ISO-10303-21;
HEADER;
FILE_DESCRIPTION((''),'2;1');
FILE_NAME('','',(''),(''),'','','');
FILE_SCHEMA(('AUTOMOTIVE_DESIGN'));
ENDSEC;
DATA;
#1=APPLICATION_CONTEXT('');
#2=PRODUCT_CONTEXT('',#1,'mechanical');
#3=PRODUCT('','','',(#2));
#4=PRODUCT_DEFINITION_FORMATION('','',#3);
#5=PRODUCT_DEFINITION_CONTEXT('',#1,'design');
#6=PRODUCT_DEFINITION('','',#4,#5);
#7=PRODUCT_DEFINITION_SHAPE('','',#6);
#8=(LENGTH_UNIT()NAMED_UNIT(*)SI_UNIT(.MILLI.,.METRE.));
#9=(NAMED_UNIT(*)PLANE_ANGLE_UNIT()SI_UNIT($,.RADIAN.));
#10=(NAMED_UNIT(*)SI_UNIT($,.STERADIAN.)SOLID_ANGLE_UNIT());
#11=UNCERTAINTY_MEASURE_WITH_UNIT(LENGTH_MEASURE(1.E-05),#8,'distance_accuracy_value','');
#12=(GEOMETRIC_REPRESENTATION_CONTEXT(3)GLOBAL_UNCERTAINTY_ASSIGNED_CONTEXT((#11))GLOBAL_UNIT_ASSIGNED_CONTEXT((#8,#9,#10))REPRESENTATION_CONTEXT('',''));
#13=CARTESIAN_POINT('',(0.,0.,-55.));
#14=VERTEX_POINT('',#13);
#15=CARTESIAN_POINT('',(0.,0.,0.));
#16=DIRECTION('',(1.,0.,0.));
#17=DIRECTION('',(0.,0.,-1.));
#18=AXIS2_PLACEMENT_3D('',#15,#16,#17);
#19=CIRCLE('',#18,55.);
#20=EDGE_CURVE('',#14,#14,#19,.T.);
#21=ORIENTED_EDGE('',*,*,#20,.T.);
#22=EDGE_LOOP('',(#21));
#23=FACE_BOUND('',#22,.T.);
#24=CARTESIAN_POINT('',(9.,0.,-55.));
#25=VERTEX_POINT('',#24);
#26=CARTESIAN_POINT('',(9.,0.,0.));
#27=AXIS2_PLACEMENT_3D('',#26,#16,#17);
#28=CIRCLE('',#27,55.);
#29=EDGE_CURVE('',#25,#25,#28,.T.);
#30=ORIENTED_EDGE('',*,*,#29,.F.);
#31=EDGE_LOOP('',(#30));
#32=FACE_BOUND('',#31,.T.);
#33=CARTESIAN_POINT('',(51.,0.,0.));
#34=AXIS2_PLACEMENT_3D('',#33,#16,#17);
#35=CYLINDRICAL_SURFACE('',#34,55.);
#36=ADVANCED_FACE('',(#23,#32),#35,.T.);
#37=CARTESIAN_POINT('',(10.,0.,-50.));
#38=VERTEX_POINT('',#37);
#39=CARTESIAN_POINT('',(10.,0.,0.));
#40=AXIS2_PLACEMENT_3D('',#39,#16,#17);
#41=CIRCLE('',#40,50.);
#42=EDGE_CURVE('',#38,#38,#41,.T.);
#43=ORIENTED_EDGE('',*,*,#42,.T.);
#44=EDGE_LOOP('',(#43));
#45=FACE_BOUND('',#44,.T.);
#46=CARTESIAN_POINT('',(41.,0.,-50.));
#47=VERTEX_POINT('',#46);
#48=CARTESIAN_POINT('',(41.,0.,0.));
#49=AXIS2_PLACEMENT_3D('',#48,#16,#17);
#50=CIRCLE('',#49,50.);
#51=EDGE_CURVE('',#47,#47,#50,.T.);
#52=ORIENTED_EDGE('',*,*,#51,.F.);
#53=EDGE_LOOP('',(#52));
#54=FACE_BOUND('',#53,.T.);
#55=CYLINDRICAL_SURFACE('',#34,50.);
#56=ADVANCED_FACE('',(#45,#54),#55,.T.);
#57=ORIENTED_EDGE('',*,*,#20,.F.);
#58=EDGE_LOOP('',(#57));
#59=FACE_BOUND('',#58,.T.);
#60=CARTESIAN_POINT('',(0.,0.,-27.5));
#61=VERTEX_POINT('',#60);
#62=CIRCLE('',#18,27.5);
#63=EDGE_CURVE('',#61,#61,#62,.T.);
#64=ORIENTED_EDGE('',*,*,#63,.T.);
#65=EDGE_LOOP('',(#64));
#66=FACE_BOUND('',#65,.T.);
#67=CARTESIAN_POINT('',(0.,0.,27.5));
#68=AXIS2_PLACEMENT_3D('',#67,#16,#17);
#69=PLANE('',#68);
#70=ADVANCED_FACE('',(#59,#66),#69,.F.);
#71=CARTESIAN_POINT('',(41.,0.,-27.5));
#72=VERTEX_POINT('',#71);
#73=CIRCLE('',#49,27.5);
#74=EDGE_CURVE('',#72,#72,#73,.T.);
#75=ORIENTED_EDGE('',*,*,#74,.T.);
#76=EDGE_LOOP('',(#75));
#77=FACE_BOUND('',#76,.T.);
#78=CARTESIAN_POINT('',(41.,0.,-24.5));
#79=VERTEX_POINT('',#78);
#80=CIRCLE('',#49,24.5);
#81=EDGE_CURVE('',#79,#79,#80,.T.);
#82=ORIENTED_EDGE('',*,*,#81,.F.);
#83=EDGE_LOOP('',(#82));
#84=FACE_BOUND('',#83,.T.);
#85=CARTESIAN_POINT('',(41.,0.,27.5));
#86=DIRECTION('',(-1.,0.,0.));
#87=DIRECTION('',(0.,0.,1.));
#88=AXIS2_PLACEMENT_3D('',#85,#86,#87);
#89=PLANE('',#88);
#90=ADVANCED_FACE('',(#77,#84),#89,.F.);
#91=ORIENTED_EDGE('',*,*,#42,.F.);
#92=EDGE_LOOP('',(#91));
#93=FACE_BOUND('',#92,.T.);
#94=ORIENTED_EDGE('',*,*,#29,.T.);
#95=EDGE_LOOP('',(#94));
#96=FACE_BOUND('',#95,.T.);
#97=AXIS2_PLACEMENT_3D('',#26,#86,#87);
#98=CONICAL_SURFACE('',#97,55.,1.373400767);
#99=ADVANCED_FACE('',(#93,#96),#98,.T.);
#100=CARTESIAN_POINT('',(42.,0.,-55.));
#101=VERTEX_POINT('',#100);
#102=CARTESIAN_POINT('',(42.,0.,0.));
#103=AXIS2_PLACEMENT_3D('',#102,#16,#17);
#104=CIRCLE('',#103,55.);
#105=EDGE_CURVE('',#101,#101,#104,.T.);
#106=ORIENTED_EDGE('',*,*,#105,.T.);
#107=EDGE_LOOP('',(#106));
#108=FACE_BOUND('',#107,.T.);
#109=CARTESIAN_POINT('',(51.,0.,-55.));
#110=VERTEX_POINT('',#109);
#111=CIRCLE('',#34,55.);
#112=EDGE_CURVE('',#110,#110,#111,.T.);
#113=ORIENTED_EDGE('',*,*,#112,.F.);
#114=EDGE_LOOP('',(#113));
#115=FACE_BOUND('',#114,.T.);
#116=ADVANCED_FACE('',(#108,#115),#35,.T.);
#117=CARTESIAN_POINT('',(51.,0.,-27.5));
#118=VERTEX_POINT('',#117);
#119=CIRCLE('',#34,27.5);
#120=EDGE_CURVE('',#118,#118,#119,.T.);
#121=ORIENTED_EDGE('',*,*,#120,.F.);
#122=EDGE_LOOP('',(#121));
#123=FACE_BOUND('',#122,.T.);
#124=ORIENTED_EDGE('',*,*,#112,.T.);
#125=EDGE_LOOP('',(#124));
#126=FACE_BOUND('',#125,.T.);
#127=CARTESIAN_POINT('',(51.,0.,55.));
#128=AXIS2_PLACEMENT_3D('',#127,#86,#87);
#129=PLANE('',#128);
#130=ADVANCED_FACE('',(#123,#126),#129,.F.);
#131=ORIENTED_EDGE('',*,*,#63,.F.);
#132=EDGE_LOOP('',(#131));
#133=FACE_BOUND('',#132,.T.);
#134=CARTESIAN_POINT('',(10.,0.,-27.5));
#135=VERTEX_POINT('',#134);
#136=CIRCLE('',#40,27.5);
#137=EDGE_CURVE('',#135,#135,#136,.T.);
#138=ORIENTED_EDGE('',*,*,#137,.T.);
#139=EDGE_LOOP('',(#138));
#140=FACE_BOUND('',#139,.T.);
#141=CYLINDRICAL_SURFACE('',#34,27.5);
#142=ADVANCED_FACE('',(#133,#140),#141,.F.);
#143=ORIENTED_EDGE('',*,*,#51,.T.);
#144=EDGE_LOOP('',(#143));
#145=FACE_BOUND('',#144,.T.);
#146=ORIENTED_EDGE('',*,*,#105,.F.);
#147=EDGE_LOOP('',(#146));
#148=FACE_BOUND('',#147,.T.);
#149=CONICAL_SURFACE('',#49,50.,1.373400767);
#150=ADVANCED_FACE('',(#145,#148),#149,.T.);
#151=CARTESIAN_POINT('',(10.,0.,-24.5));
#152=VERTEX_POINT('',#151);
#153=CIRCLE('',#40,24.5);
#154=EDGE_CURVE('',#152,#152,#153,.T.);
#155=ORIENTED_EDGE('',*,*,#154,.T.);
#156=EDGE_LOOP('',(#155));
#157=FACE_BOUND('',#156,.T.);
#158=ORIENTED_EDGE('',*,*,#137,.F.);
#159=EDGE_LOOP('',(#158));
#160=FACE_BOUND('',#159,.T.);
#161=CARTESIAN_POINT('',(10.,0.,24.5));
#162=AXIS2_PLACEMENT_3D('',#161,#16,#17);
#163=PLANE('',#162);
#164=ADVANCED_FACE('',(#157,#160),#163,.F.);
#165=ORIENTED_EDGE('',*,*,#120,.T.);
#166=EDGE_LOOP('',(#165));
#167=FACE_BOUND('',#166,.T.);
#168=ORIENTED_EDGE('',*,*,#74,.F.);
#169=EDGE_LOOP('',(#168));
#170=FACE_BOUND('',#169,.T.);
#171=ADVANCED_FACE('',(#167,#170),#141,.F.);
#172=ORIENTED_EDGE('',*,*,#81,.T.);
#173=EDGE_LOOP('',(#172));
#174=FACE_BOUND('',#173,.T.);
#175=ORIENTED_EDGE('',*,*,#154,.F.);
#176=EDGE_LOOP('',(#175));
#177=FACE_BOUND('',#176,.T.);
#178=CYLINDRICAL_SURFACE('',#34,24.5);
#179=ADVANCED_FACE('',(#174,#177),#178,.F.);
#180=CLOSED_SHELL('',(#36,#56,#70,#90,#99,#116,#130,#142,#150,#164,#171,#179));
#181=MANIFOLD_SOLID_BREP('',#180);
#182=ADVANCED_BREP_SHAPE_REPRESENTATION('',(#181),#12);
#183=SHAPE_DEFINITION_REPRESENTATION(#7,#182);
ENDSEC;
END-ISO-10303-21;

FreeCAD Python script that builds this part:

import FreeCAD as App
import Part
import Sketcher

doc = App.newDocument("Part")
params = doc.addObject("Spreadsheet::Sheet", "Params")
for row, (alias, value) in enumerate([
    ("sketch1_width", "31 mm"),
    ("sketch1_width2", "9 mm"),
    ("sketch1_width3", "10 mm"),
    ("sketch1_height", "3 mm"),
    ("sketch1_height2", "27.5 mm"),
    ("revolution_angle", "360 deg"),
], start=1):
    params.set(f"A{row}", alias)
    params.set(f"B{row}", "=" + value)
    params.setAlias(f"B{row}", alias)

body = doc.addObject("PartDesign::Body", "Body")

sketch1 = body.newObject("Sketcher::SketchObject", "Sketch")
sketch1.AttachmentSupport = (doc.getObject("XZ_Plane"), [""])
sketch1.MapMode = "FlatFace"
sketch1.addGeometry([
    Part.LineSegment(App.Vector(9, 55, 0), App.Vector(10, 50, 0)),
    Part.LineSegment(App.Vector(10, 50, 0), App.Vector(41, 50, 0)),
    Part.LineSegment(App.Vector(41, 50, 0), App.Vector(42, 55, 0)),
    Part.LineSegment(App.Vector(42, 55, 0), App.Vector(51, 55, 0)),
    Part.LineSegment(App.Vector(51, 55, 0), App.Vector(51, 27.5, 0)),
    Part.LineSegment(App.Vector(51, 27.5, 0), App.Vector(41, 27.5, 0)),
    Part.LineSegment(App.Vector(41, 27.5, 0), App.Vector(41, 24.5, 0)),
    Part.LineSegment(App.Vector(41, 24.5, 0), App.Vector(10, 24.5, 0)),
    Part.LineSegment(App.Vector(10, 24.5, 0), App.Vector(10, 27.5, 0)),
    Part.LineSegment(App.Vector(10, 27.5, 0), App.Vector(0, 27.5, 0)),
    Part.LineSegment(App.Vector(0, 27.5, 0), App.Vector(0, 55, 0)),
    Part.LineSegment(App.Vector(0, 55, 0), App.Vector(9, 55, 0)),
], False)
sketch1.addConstraint([
    Sketcher.Constraint("Coincident", 0, 2, 1, 1),
    Sketcher.Constraint("Coincident", 1, 2, 2, 1),
    Sketcher.Constraint("Coincident", 2, 2, 3, 1),
    Sketcher.Constraint("Coincident", 3, 2, 4, 1),
    Sketcher.Constraint("Coincident", 4, 2, 5, 1),
    Sketcher.Constraint("Coincident", 5, 2, 6, 1),
    Sketcher.Constraint("Coincident", 6, 2, 7, 1),
    Sketcher.Constraint("Coincident", 7, 2, 8, 1),
    Sketcher.Constraint("Coincident", 8, 2, 9, 1),
    Sketcher.Constraint("Coincident", 9, 2, 10, 1),
    Sketcher.Constraint("Coincident", 10, 2, 11, 1),
    Sketcher.Constraint("Coincident", 11, 2, 0, 1),
    Sketcher.Constraint("Horizontal", 1),
    Sketcher.Constraint("Horizontal", 3),
    Sketcher.Constraint("Vertical", 4),
    Sketcher.Constraint("Horizontal", 5),
    Sketcher.Constraint("Vertical", 6),
    Sketcher.Constraint("Horizontal", 7),
    Sketcher.Constraint("Vertical", 8),
    Sketcher.Constraint("Horizontal", 9),
    Sketcher.Constraint("Vertical", 10),
    Sketcher.Constraint("Horizontal", 11),
    Sketcher.Constraint("PointOnObject", 9, 2, -2),
    Sketcher.Constraint("Horizontal", 5, 2, 8, 2),
    Sketcher.Constraint("Horizontal", 3, 2, 10, 2),
    Sketcher.Constraint("Vertical", 1, 2, 5, 2),
    Sketcher.Constraint("Vertical", 0, 2, 7, 2),
    Sketcher.Constraint("Equal", 5, 9),
    Sketcher.Constraint("Equal", 3, 11),
    Sketcher.Constraint("DistanceX", 1, 1, 1, 2, 31.0),
    Sketcher.Constraint("DistanceX", 3, 1, 3, 2, 9.0),
    Sketcher.Constraint("DistanceX", 5, 2, 5, 1, 10.0),
    Sketcher.Constraint("DistanceY", 6, 2, 6, 1, 3.0),
    Sketcher.Constraint("DistanceY", 4, 2, 4, 1, 27.5),
    Sketcher.Constraint("DistanceY", -1, 1, 0, 2, 50.0),
    Sketcher.Constraint("DistanceY", -1, 1, 2, 2, 55.0),
])
sketch1.setExpression("Constraints[29]", "Params.sketch1_width")
sketch1.setExpression("Constraints[30]", "Params.sketch1_width2")
sketch1.setExpression("Constraints[31]", "Params.sketch1_width3")
sketch1.setExpression("Constraints[32]", "Params.sketch1_height")
sketch1.setExpression("Constraints[33]", "Params.sketch1_height2")
revolution = body.newObject("PartDesign::Revolution", "Revolution")
revolution.Profile = sketch1
revolution.ReferenceAxis = (sketch1, ["H_Axis"])
revolution.setExpression("Angle", "Params.revolution_angle")

doc.recompute()
